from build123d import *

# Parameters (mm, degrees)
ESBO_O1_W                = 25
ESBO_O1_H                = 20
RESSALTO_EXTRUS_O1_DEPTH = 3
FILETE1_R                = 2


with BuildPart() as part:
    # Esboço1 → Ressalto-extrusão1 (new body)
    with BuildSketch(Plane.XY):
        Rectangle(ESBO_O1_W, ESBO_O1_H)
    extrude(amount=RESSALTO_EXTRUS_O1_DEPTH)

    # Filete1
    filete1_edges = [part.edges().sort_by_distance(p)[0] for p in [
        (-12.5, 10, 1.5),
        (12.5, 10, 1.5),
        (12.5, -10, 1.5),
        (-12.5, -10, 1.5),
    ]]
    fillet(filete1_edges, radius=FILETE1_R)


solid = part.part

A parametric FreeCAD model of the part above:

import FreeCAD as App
import Part
import Sketcher
Q = App.Units.Quantity


def edges_at(feature, points):
    """Names of the edges that pass closest to the given points."""
    edges = feature.Shape.Edges
    near = lambda p: min(range(len(edges)), key=lambda i: edges[i].distToShape(Part.Vertex(*p))[0])
    return sorted({f"Edge{near(p) + 1}" for p in points})


def add_polygon(sketch, points):
    """Adds a closed chain of lines whose ends are joined by coincident constraints."""
    first, n = sketch.GeometryCount, len(points)
    for a, b in zip(points, points[1:] + points[:1]):
        sketch.addGeometry(Part.LineSegment(App.Vector(*a, 0), App.Vector(*b, 0)), False)
    for i in range(n):
        sketch.addConstraint(Sketcher.Constraint("Coincident", first + i, 2, first + (i + 1) % n, 1))

doc = App.newDocument("Part")
body = doc.addObject("PartDesign::Body", "Body")

# Sketch on XY plane
sketch1 = doc.addObject("Sketcher::SketchObject", "Sketch")
body.addObject(sketch1)
sketch1.AttachmentSupport = (doc.XY_Plane, [""])
sketch1.MapMode = "FlatFace"
add_polygon(sketch1, [(-12, 10), (-12, -10), (12, -10), (12, 10)])  # lines 0-3
sketch1.addConstraint([
    Sketcher.Constraint("Vertical", 0),
    Sketcher.Constraint("Horizontal", 1),
    Sketcher.Constraint("Vertical", 2),
    Sketcher.Constraint("Horizontal", 3),
    Sketcher.Constraint("Symmetric", 0, 2, 2, 2, -1, 1),
    Sketcher.Constraint("DistanceX", 1, 1, 1, 2, Q("25 mm")),
    Sketcher.Constraint("DistanceY", 0, 2, 0, 1, Q("20 mm")),
])
pad1 = doc.addObject("PartDesign::Pad", "Pad")
body.addObject(pad1)
pad1.Profile = sketch1
pad1.Length = 3
doc.recompute()

fillet = doc.addObject("PartDesign::Fillet", "Fillet")
body.addObject(fillet)
fillet.Base = (pad1, edges_at(pad1, [
    (-12.5, 10, 1.5),
    (12.5, 10, 1.5),
    (12.5, -10, 1.5),
    (-12.5, -10, 1.5),
]))
fillet.Radius = 2

doc.recompute()
